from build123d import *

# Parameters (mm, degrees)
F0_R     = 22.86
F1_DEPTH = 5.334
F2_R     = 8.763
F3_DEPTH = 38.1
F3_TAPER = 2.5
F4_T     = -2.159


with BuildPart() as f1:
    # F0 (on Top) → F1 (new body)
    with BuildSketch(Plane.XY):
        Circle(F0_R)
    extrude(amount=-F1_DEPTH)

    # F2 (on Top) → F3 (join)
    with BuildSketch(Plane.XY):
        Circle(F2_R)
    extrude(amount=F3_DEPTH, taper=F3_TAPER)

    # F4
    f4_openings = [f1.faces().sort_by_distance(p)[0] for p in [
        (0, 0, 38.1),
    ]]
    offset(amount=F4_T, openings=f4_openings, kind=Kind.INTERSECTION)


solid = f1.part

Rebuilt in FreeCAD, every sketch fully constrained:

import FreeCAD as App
import Part
import Sketcher

V = App.Vector
Q = App.Units.Quantity


def faces_at(feature, points):
    """Names of the faces that lie closest to the given points."""
    faces = feature.Shape.Faces
    near = lambda p: min(range(len(faces)), key=lambda i: faces[i].distToShape(Part.Vertex(*p))[0])
    return sorted({f"Face{near(p) + 1}" for p in points})

doc = App.newDocument("Part")
body = doc.addObject("PartDesign::Body", "Body")

# Sketch on XY plane
sketch1 = body.newObject("Sketcher::SketchObject", "Sketch")
sketch1.AttachmentSupport = (doc.getObject("XY_Plane"), [""])
sketch1.MapMode = "FlatFace"
sketch1.addGeometry(Part.Circle(V(0, 0, 0), V(0, 0, 1), 22.86), False)
sketch1.addConstraint([
    Sketcher.Constraint("Coincident", 0, 3, -1, 1),
    Sketcher.Constraint("Diameter", 0, Q("1.8 in")),
])
pad1 = body.newObject("PartDesign::Pad", "Pad")
pad1.Profile = sketch1
pad1.Length = Q("0.21 in")
pad1.Reversed = True

# Sketch on XY plane
sketch2 = body.newObject("Sketcher::SketchObject", "Sketch001")
sketch2.AttachmentSupport = (doc.getObject("XY_Plane"), [""])
sketch2.MapMode = "FlatFace"
sketch2.addGeometry(Part.Circle(V(0, 0, 0), V(0, 0, 1), 8.763), False)
sketch2.addConstraint([
    Sketcher.Constraint("Coincident", 0, 3, -1, 1),
    Sketcher.Constraint("Diameter", 0, Q("0.69 in")),
])
pad2 = body.newObject("PartDesign::Pad", "Pad001")
pad2.Profile = sketch2
pad2.Length = Q("1.5 in")
pad2.TaperAngle = -2.5
doc.recompute()

thickness = body.newObject("PartDesign::Thickness", "Thickness")
thickness.Base = (pad2, faces_at(pad2, [(0, 0, 38.1)]))
thickness.Value = Q("0.085 in")
thickness.Reversed = True
thickness.Join = "Intersection"

doc.recompute()
